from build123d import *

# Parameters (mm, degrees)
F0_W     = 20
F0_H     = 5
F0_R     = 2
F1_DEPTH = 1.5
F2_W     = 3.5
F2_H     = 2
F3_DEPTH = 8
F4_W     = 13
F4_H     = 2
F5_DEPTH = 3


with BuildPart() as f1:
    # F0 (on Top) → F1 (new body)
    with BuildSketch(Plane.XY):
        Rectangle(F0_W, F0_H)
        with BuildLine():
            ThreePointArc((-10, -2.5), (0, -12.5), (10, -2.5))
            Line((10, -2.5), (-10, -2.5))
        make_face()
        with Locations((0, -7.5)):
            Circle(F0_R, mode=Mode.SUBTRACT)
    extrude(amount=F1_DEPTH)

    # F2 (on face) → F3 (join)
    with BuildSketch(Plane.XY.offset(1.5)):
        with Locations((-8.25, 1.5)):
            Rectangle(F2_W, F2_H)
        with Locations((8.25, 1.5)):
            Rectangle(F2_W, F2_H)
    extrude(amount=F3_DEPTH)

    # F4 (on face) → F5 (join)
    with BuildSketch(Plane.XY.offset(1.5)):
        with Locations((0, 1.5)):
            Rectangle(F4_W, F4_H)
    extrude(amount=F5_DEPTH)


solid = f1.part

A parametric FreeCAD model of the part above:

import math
import FreeCAD as App
import Part
import Sketcher

V = App.Vector
Q = App.Units.Quantity

doc = App.newDocument("Part")
params = doc.addObject("Spreadsheet::Sheet", "Params")
for row, (alias, value) in enumerate([
    ("sketch1_diameter", "4 mm"),
    ("sketch1_radius", "10 mm"),
    ("sketch1_height", "5 mm"),
    ("pad1_length", "1.5 mm"),
    ("sketch2_height", "2 mm"),
    ("sketch2_width", "3.5 mm"),
    ("pad2_length", "8 mm"),
    ("sketch3_width", "13 mm"),
    ("sketch3_height", "2 mm"),
    ("pad3_length", "3 mm"),
], start=1):
    params.set(f"A{row}", alias)
    params.set(f"B{row}", "=" + value)
    params.setAlias(f"B{row}", alias)

body = doc.addObject("PartDesign::Body", "Body")

sketch1 = body.newObject("Sketcher::SketchObject", "Sketch")
sketch1.AttachmentSupport = (doc.getObject("XY_Plane"), [""])
sketch1.MapMode = "FlatFace"
sketch1.addGeometry([
    Part.LineSegment(V(-10, 2.5, 0), V(-10, -2.5, 0)),
    Part.ArcOfCircle(Part.Circle(V(0, -2.5, 0), V(0, 0, 1), 10), math.radians(180), math.radians(360)),
    Part.LineSegment(V(10, -2.5, 0), V(10, 2.5, 0)),
    Part.LineSegment(V(10, 2.5, 0), V(-10, 2.5, 0)),
    Part.Circle(V(0, -7.5, 0), V(0, 0, 1), 2),
], False)
sketch1.addConstraint([
    Sketcher.Constraint("Tangent", 0, 2, 1, 1),
    Sketcher.Constraint("Tangent", 1, 2, 2, 1),
    Sketcher.Constraint("Coincident", 2, 2, 3, 1),
    Sketcher.Constraint("Coincident", 3, 2, 0, 1),
    Sketcher.Constraint("Vertical", 0),
    Sketcher.Constraint("Vertical", 2),
    Sketcher.Constraint("Horizontal", 3),
    Sketcher.Constraint("Symmetric", 0, 2, 2, 2, -1, 1),
    Sketcher.Constraint("PointOnObject", 4, 3, -2),
    Sketcher.Constraint("Diameter", 4, Q("4 mm")),
    Sketcher.Constraint("Radius", 1, Q("10 mm")),
    Sketcher.Constraint("DistanceY", 0, 2, 0, 1, Q("5 mm")),
    Sketcher.Constraint("DistanceY", 4, 3, 1, 3, Q("5 mm")),
])
sketch1.setExpression("Constraints[9]", "Params.sketch1_diameter")
sketch1.setExpression("Constraints[10]", "Params.sketch1_radius")
sketch1.setExpression("Constraints[11]", "Params.sketch1_height")
pad1 = body.newObject("PartDesign::Pad", "Pad")
pad1.Profile = sketch1
pad1.setExpression("Length", "Params.pad1_length")

sketch2 = body.newObject("Sketcher::SketchObject", "Sketch001")
sketch2.AttachmentSupport = (doc.getObject("XY_Plane"), [""])
sketch2.MapMode = "FlatFace"
sketch2.AttachmentOffset = App.Placement(V(0, 0, 1.5), App.Rotation())
sketch2.addGeometry([
    Part.LineSegment(V(-10, 2.5, 0), V(-10, 0.5, 0)),
    Part.LineSegment(V(-10, 0.5, 0), V(-6.5, 0.5, 0)),
    Part.LineSegment(V(-6.5, 0.5, 0), V(-6.5, 2.5, 0)),
    Part.LineSegment(V(-6.5, 2.5, 0), V(-10, 2.5, 0)),
    Part.LineSegment(V(6.5, 2.5, 0), V(6.5, 0.5, 0)),
    Part.LineSegment(V(6.5, 0.5, 0), V(10, 0.5, 0)),
    Part.LineSegment(V(10, 0.5, 0), V(10, 2.5, 0)),
    Part.LineSegment(V(10, 2.5, 0), V(6.5, 2.5, 0)),
], False)
sketch2.addConstraint([
    Sketcher.Constraint("Coincident", 0, 2, 1, 1),
    Sketcher.Constraint("Coincident", 1, 2, 2, 1),
    Sketcher.Constraint("Coincident", 2, 2, 3, 1),
    Sketcher.Constraint("Coincident", 3, 2, 0, 1),
    Sketcher.Constraint("Coincident", 4, 2, 5, 1),
    Sketcher.Constraint("Coincident", 5, 2, 6, 1),
    Sketcher.Constraint("Coincident", 6, 2, 7, 1),
    Sketcher.Constraint("Coincident", 7, 2, 4, 1),
    Sketcher.Constraint("Vertical", 0),
    Sketcher.Constraint("Horizontal", 1),
    Sketcher.Constraint("Vertical", 2),
    Sketcher.Constraint("Horizontal", 3),
    Sketcher.Constraint("Vertical", 4),
    Sketcher.Constraint("Horizontal", 5),
    Sketcher.Constraint("Vertical", 6),
    Sketcher.Constraint("Horizontal", 7),
    Sketcher.Constraint("Symmetric", 1, 2, 4, 2, -2),
    Sketcher.Constraint("Symmetric", 3, 2, 6, 2, -2),
    Sketcher.Constraint("DistanceY", 0, 2, 0, 1, Q("2 mm")),
    Sketcher.Constraint("DistanceX", 1, 1, 1, 2, Q("3.5 mm")),
    Sketcher.Constraint("DistanceX", 0, 2, -1, 1, Q("10 mm")),
    Sketcher.Constraint("DistanceY", -1, 1, 0, 2, Q("0.5 mm")),
])
sketch2.setExpression("Constraints[18]", "Params.sketch2_height")
sketch2.setExpression("Constraints[19]", "Params.sketch2_width")
pad2 = body.newObject("PartDesign::Pad", "Pad001")
pad2.Profile = sketch2
pad2.setExpression("Length", "Params.pad2_length")

sketch3 = body.newObject("Sketcher::SketchObject", "Sketch002")
sketch3.AttachmentSupport = (doc.getObject("XY_Plane"), [""])
sketch3.MapMode = "FlatFace"
sketch3.AttachmentOffset = App.Placement(V(0, 0, 1.5), App.Rotation())
sketch3.addGeometry([
    Part.LineSegment(V(-6.5, 2.5, 0), V(-6.5, 0.5, 0)),
    Part.LineSegment(V(-6.5, 0.5, 0), V(6.5, 0.5, 0)),
    Part.LineSegment(V(6.5, 0.5, 0), V(6.5, 2.5, 0)),
    Part.LineSegment(V(6.5, 2.5, 0), V(-6.5, 2.5, 0)),
], False)
sketch3.addConstraint([
    Sketcher.Constraint("Coincident", 0, 2, 1, 1),
    Sketcher.Constraint("Coincident", 1, 2, 2, 1),
    Sketcher.Constraint("Coincident", 2, 2, 3, 1),
    Sketcher.Constraint("Coincident", 3, 2, 0, 1),
    Sketcher.Constraint("Vertical", 0),
    Sketcher.Constraint("Horizontal", 1),
    Sketcher.Constraint("Vertical", 2),
    Sketcher.Constraint("Horizontal", 3),
    Sketcher.Constraint("DistanceX", 1, 1, 1, 2, Q("13 mm")),
    Sketcher.Constraint("DistanceY", 0, 2, 0, 1, Q("2 mm")),
    Sketcher.Constraint("DistanceX", 0, 2, -1, 1, Q("6.5 mm")),
    Sketcher.Constraint("DistanceY", -1, 1, 0, 2, Q("0.5 mm")),
])
sketch3.setExpression("Constraints[8]", "Params.sketch3_width")
sketch3.setExpression("Constraints[9]", "Params.sketch3_height")
pad3 = body.newObject("PartDesign::Pad", "Pad002")
pad3.Profile = sketch3
pad3.setExpression("Length", "Params.pad3_length")

doc.recompute()
